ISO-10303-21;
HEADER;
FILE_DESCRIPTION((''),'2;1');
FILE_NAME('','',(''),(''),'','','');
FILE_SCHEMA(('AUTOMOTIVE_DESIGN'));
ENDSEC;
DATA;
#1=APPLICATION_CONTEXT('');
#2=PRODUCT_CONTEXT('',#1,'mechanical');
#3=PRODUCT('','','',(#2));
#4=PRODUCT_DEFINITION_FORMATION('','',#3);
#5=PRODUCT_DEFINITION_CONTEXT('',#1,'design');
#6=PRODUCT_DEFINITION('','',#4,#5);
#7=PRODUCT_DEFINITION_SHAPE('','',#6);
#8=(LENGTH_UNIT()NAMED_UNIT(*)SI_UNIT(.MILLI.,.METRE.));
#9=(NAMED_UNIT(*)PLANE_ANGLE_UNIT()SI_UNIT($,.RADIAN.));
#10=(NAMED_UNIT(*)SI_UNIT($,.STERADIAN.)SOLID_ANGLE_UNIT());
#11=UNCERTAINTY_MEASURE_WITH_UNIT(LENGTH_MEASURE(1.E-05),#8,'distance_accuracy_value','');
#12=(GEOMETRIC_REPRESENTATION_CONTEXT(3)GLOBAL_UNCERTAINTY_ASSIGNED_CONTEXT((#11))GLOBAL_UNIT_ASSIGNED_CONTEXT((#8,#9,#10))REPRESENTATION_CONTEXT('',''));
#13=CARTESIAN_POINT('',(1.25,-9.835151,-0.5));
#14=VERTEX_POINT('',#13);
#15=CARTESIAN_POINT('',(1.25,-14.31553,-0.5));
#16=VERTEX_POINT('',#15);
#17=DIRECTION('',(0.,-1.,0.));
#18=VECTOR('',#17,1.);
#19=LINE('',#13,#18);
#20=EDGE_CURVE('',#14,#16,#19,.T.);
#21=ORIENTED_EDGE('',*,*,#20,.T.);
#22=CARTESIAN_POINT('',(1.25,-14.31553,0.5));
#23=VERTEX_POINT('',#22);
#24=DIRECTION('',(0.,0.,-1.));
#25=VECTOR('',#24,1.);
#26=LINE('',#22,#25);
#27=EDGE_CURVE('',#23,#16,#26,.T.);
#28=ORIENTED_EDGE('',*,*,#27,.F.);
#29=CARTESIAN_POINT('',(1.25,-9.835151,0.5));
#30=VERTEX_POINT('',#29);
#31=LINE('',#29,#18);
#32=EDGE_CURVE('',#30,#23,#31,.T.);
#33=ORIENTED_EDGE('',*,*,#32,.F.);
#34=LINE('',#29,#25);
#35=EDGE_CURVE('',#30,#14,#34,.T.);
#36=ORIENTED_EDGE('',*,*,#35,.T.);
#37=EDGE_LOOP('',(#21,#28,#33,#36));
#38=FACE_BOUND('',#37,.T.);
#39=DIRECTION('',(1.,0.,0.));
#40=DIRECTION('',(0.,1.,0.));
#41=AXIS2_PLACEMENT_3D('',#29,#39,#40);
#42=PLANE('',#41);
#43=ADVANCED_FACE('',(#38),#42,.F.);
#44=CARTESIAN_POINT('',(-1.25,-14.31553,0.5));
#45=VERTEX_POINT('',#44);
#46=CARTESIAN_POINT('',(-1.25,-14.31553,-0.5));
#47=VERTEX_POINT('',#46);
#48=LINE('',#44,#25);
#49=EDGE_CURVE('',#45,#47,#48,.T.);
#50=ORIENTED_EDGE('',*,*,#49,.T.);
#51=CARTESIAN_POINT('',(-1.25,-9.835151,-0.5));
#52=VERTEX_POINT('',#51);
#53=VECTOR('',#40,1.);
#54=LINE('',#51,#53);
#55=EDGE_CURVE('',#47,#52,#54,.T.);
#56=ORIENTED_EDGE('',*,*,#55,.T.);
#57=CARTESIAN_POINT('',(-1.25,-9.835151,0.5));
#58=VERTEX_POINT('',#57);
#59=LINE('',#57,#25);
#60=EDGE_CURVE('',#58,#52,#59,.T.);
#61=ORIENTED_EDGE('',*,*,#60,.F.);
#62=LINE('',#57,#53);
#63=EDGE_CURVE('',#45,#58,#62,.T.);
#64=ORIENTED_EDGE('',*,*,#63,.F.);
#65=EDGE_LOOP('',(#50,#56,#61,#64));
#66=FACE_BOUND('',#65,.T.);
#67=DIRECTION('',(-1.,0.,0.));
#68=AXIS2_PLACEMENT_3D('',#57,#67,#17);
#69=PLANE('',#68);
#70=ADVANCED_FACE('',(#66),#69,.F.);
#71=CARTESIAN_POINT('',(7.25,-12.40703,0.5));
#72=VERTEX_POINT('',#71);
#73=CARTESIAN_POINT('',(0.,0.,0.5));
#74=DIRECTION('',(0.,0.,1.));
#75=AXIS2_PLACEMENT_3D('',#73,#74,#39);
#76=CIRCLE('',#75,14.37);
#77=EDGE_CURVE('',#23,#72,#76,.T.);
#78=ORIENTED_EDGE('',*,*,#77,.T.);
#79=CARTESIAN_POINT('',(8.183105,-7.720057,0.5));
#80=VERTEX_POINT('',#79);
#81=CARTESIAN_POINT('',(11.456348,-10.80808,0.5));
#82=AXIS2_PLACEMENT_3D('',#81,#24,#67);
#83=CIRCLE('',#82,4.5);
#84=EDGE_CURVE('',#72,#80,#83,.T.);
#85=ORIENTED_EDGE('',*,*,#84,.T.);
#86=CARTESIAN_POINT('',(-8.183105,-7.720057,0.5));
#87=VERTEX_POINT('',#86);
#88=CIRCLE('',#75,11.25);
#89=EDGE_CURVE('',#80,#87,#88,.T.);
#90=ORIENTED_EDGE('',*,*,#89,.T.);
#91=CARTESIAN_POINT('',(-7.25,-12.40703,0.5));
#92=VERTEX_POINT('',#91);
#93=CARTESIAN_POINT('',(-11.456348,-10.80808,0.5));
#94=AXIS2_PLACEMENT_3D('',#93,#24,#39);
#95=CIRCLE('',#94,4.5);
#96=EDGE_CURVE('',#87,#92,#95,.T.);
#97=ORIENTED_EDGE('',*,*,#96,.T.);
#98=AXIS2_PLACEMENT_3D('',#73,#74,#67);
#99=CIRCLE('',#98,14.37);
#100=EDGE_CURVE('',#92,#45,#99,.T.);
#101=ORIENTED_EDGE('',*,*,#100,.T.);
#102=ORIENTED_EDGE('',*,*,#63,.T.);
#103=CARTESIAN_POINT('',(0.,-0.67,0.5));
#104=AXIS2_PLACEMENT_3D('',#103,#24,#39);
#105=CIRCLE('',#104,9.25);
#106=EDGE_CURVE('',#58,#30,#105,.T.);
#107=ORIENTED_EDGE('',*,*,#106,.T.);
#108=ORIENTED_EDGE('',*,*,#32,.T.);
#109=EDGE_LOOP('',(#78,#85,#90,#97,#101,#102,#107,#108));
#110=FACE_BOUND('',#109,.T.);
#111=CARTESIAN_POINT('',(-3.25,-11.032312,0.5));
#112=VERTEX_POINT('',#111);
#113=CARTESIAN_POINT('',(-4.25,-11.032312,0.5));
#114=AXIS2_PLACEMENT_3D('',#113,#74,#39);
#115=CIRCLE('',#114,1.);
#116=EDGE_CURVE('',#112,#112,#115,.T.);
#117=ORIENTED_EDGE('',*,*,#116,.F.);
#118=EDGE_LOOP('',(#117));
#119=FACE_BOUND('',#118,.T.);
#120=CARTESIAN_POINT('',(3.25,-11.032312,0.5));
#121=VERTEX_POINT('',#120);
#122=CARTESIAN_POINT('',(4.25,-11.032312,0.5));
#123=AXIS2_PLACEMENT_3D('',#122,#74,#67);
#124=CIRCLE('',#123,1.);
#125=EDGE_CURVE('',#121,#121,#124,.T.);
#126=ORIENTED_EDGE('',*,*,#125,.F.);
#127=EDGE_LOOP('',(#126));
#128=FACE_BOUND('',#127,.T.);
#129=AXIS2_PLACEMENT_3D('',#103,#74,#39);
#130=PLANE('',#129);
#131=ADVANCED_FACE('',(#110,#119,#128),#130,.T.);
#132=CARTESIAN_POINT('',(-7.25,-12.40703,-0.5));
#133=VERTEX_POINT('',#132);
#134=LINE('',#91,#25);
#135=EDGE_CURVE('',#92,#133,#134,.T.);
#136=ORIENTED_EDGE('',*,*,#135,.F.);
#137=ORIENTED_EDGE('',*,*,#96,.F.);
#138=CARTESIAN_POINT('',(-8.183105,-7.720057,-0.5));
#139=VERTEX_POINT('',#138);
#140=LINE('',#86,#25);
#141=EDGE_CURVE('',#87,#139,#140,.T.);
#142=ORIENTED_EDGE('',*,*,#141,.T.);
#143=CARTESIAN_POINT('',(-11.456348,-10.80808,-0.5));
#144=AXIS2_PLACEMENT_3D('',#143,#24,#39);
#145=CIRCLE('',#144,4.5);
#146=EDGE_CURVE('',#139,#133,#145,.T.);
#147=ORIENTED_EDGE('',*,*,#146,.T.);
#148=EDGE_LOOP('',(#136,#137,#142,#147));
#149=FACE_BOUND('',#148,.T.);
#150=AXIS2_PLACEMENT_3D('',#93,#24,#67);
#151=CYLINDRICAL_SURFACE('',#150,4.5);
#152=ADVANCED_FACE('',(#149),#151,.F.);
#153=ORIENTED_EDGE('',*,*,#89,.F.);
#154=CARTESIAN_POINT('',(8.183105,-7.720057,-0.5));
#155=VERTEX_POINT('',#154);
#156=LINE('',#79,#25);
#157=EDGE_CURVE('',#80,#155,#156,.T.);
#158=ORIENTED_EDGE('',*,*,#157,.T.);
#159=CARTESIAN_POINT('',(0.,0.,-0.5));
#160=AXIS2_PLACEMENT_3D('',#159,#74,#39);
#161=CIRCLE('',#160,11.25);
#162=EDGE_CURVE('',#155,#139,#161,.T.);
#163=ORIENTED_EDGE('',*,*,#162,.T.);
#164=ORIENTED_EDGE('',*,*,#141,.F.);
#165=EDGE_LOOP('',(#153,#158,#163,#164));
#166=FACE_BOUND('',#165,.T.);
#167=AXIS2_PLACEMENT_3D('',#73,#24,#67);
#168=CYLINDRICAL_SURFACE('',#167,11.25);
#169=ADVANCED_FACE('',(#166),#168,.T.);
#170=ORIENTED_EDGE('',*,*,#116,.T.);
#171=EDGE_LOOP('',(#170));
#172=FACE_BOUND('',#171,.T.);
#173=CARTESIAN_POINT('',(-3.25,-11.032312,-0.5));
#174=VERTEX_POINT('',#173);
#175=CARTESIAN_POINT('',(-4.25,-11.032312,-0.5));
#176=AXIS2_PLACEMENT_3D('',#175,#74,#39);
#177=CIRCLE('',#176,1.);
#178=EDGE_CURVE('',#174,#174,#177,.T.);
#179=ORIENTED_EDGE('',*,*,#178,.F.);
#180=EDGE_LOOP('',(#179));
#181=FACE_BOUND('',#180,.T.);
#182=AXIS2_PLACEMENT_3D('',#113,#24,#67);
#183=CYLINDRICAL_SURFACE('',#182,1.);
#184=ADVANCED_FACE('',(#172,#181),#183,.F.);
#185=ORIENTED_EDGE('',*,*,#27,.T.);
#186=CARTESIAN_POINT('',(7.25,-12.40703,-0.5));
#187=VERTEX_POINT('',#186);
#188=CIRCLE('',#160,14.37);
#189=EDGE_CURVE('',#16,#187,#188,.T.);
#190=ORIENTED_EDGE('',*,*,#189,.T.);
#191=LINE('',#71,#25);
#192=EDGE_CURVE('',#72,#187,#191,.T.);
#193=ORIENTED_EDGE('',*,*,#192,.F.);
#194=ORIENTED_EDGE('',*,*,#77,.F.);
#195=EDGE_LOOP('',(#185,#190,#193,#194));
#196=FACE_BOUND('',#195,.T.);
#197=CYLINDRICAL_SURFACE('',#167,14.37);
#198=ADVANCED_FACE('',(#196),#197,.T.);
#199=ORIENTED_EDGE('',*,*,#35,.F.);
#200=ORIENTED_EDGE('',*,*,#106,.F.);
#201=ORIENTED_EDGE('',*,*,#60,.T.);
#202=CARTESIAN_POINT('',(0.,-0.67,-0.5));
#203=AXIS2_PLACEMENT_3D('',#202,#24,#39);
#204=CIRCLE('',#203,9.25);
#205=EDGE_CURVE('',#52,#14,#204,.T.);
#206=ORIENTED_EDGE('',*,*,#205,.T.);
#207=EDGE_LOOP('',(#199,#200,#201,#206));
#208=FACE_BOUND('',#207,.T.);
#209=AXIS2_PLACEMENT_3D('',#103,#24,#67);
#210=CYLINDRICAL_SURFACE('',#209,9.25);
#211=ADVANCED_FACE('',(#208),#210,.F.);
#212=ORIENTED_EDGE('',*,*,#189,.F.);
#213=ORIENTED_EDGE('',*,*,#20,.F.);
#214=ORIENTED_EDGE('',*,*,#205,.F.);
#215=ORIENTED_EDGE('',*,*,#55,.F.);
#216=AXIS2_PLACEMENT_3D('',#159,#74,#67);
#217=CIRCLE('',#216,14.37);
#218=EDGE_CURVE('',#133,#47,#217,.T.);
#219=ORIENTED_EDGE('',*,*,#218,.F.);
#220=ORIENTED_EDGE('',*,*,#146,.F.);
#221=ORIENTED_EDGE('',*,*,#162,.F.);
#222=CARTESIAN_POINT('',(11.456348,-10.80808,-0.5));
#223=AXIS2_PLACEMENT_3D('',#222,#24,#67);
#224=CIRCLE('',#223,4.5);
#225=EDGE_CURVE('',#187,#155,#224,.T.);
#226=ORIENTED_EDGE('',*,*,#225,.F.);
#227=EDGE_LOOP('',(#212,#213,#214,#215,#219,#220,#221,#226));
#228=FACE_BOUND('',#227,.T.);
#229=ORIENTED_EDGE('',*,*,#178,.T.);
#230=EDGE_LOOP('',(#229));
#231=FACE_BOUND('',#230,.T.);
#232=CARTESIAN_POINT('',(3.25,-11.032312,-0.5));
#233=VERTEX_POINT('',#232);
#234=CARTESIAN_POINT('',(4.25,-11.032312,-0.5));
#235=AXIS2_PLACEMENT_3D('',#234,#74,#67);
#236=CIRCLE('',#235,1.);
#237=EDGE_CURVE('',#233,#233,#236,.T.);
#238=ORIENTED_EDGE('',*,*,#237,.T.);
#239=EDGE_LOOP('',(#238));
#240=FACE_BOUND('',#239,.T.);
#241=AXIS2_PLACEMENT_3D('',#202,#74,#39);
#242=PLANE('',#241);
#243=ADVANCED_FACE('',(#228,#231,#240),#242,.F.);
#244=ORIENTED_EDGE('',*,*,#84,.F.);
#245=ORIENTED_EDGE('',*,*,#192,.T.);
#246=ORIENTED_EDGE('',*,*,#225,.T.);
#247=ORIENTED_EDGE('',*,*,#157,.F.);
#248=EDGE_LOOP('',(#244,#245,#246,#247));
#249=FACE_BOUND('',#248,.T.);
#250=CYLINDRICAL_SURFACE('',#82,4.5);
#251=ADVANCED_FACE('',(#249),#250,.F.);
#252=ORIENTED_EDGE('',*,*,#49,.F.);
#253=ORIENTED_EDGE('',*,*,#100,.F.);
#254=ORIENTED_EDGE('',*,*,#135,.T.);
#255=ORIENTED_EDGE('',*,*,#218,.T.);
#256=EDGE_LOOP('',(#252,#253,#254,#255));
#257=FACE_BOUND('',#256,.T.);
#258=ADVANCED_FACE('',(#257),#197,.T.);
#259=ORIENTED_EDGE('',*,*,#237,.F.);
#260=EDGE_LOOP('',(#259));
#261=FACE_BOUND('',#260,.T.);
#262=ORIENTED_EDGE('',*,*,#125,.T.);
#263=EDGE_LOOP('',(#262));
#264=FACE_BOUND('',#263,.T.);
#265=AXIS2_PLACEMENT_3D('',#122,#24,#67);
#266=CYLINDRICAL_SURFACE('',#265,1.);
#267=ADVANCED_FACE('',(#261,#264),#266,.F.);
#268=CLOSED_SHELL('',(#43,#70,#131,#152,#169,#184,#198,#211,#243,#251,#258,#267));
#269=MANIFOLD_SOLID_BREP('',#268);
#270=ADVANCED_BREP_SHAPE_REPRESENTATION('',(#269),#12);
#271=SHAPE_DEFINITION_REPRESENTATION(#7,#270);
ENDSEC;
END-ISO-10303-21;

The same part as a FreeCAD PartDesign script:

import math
import FreeCAD as App
import Part
import Sketcher
from FreeCAD import Vector

doc = App.newDocument("Part")
body = doc.addObject("PartDesign::Body", "Body")

sketch1 = body.newObject("Sketcher::SketchObject", "Sketch")
sketch1.AttachmentSupport = (doc.getObject("XY_Plane"), [""])
sketch1.MapMode = "FlatFace"
sketch1.addGeometry([
    Part.LineSegment(Vector(-1.25, -14.31553, 0), Vector(-1.25, -9.835151, 0)),
    Part.ArcOfCircle(Part.Circle(Vector(0, -0.67, 0), Vector(0, 0, 1), 9.25), math.radians(-82.233566), math.radians(262.233566)),
    Part.LineSegment(Vector(1.25, -9.835151, 0), Vector(1.25, -14.31553, 0)),
    Part.ArcOfCircle(Part.Circle(Vector(0, 0, 0), Vector(0, 0, 1), 14.37), math.radians(-85.009718), math.radians(-59.700286)),
    Part.ArcOfCircle(Part.Circle(Vector(11.456348, -10.80808, 0), Vector(0, 0, 1), 4.5), math.radians(136.667794), math.radians(200.813192)),
    Part.ArcOfCircle(Part.Circle(Vector(0, 0, 0), Vector(0, 0, 1), 11.25), math.radians(-43.332206), math.radians(223.332206)),
    Part.ArcOfCircle(Part.Circle(Vector(-11.456348, -10.80808, 0), Vector(0, 0, 1), 4.5), math.radians(-20.813192), math.radians(43.332206)),
    Part.ArcOfCircle(Part.Circle(Vector(0, 0, 0), Vector(0, 0, 1), 14.37), math.radians(-120.299714), math.radians(-94.990282)),
    Part.Circle(Vector(4.25, -11.032312, 0), Vector(0, 0, 1), 1),
    Part.Circle(Vector(-4.25, -11.032312, 0), Vector(0, 0, 1), 1),
], False)
sketch1.addConstraint([
    Sketcher.Constraint("Coincident", 0, 2, 1, 2),
    Sketcher.Constraint("Coincident", 1, 1, 2, 1),
    Sketcher.Constraint("Coincident", 2, 2, 3, 1),
    Sketcher.Constraint("Coincident", 3, 2, 4, 2),
    Sketcher.Constraint("Tangent", 4, 1, 5, 1),
    Sketcher.Constraint("Tangent", 5, 2, 6, 2),
    Sketcher.Constraint("Coincident", 6, 1, 7, 1),
    Sketcher.Constraint("Coincident", 7, 2, 0, 1),
    Sketcher.Constraint("Vertical", 0),
    Sketcher.Constraint("Vertical", 2),
    Sketcher.Constraint("Coincident", 3, 3, -1, 1),
    Sketcher.Constraint("Coincident", 5, 3, -1, 1),
    Sketcher.Constraint("Coincident", 7, 3, -1, 1),
    Sketcher.Constraint("Equal", 4, 6),
    Sketcher.Constraint("Equal", 3, 7),
    Sketcher.Constraint("Equal", 8, 9),
    Sketcher.Constraint("Symmetric", 8, 3, 9, 3, -2),
    Sketcher.Constraint("Symmetric", 0, 2, 1, 1, -2),
    Sketcher.Constraint("Horizontal", 4, 3, 6, 3),
    Sketcher.Constraint("Diameter", 8, 2.0),
    Sketcher.Constraint("Radius", 4, 4.5),
    Sketcher.Constraint("Radius", 1, 9.25),
    Sketcher.Constraint("Radius", 3, 14.37),
    Sketcher.Constraint("Radius", 5, 11.25),
    Sketcher.Constraint("DistanceX", 9, 3, 0, 2, 3.0),
    Sketcher.Constraint("DistanceX", 8, 3, 3, 2, 3.0),
    Sketcher.Constraint("DistanceX", 9, 3, 8, 3, 8.5),
    Sketcher.Constraint("DistanceY", 1, 3, -1, 1, 0.67),
    Sketcher.Constraint("DistanceY", 8, 3, -1, 1, 11.032312),
])
pad1 = body.newObject("PartDesign::Pad", "Pad")
pad1.Profile = sketch1
pad1.Type = "TwoLengths"
pad1.Length = 0.5
pad1.Length2 = 0.5

doc.recompute()
